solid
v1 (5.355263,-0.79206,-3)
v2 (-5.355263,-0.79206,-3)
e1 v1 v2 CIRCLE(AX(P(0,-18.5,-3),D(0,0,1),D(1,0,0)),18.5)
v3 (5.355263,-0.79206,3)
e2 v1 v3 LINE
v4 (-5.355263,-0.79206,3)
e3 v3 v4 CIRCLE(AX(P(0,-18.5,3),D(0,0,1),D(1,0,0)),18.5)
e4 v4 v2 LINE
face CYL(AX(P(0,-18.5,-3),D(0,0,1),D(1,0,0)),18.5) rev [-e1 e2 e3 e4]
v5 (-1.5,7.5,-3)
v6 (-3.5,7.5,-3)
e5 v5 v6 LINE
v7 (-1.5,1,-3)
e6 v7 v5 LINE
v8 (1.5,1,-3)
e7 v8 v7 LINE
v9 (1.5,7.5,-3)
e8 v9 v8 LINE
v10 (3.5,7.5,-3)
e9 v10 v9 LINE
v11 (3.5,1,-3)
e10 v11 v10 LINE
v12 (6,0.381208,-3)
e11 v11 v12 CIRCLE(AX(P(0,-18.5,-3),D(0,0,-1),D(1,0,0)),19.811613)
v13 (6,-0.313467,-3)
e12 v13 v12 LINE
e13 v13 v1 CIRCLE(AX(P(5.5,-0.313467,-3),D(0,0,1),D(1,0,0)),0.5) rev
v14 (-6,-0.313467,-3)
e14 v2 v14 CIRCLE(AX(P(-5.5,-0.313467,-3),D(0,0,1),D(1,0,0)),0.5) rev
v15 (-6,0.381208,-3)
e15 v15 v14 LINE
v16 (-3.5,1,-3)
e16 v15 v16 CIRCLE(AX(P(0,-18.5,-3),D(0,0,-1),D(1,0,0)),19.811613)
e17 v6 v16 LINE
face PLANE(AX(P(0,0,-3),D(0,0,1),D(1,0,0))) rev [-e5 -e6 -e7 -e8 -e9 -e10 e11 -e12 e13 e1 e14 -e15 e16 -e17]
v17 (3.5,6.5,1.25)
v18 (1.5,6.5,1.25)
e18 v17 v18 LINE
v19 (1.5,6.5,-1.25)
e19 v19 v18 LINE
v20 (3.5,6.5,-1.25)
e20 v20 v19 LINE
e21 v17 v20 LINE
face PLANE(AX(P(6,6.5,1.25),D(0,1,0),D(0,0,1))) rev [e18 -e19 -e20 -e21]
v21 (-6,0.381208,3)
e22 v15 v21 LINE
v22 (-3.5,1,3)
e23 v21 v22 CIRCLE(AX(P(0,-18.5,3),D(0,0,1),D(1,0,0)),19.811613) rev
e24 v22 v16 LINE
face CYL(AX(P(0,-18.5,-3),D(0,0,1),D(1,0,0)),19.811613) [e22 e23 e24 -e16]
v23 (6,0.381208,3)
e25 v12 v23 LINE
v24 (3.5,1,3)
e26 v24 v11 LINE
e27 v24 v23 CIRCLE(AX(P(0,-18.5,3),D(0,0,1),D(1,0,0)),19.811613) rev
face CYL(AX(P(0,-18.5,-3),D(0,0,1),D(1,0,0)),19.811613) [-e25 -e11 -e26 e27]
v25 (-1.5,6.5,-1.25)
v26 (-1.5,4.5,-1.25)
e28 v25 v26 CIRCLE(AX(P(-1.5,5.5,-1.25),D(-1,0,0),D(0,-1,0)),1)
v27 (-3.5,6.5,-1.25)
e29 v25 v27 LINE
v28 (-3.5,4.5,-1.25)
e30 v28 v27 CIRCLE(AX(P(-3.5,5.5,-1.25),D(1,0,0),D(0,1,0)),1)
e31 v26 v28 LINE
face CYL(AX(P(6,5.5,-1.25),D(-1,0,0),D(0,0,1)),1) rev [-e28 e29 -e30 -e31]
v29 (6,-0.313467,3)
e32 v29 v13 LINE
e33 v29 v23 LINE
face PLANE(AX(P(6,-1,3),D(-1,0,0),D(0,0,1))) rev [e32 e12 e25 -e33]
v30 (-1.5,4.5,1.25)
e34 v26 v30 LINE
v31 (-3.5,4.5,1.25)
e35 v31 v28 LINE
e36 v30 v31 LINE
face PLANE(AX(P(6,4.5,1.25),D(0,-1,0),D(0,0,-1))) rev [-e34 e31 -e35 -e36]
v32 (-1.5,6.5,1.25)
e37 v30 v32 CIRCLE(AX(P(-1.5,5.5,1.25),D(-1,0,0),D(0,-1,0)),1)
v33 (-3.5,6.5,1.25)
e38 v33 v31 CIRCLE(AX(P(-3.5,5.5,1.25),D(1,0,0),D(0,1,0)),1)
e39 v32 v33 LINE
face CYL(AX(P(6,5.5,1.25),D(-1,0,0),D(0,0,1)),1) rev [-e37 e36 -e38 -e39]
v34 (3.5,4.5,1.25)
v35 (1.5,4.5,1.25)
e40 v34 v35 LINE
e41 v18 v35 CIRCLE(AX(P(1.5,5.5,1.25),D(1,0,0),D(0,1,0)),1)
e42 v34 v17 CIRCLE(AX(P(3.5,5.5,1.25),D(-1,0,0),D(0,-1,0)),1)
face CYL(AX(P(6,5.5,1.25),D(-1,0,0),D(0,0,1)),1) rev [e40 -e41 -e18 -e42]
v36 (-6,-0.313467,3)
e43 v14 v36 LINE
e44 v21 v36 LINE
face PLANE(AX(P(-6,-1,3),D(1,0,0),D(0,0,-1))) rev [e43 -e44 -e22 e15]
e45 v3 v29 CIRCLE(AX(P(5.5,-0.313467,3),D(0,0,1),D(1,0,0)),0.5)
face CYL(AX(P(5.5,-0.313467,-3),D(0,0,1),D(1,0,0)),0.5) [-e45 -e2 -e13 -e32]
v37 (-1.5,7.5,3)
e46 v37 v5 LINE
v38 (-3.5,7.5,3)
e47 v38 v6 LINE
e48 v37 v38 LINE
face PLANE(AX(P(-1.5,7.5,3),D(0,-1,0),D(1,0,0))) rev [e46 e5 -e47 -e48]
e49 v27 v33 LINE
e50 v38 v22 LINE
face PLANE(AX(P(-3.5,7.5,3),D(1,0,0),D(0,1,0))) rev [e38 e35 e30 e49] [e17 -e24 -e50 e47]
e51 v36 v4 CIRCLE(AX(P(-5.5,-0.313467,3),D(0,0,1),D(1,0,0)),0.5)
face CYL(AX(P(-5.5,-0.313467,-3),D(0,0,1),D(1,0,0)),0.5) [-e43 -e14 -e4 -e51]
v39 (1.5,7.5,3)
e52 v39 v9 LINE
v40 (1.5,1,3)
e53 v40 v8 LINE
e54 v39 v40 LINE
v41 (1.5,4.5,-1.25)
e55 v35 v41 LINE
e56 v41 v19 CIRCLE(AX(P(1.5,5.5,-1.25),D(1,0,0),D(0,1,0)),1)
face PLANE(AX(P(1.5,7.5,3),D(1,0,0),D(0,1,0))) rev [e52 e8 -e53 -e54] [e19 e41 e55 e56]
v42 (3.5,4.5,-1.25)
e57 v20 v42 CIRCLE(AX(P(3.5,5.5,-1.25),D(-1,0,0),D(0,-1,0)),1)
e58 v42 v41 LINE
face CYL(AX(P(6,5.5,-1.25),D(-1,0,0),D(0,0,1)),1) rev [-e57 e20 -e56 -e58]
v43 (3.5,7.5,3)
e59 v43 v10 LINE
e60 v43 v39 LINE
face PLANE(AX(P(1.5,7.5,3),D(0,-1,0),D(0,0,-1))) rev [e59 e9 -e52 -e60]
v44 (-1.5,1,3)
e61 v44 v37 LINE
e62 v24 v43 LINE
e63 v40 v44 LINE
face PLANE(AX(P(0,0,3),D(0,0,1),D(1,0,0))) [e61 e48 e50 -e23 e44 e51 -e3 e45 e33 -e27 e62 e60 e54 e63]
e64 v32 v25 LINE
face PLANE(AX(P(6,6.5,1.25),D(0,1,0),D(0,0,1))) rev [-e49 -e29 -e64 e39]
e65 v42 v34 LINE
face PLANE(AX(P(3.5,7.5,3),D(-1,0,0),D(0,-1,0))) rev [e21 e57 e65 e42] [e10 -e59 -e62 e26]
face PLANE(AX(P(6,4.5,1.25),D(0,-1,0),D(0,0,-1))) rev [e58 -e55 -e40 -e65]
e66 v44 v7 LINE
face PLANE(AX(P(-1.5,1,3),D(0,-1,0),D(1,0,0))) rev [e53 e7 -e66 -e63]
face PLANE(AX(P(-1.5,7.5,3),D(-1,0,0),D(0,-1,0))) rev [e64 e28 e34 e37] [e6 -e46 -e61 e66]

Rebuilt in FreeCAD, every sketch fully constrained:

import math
import FreeCAD as App
import Part
import Sketcher
from FreeCAD import Vector
Q = App.Units.Quantity


def edges_at(feature, points):
    """Names of the edges that pass closest to the given points."""
    edges = feature.Shape.Edges
    near = lambda p: min(range(len(edges)), key=lambda i: edges[i].distToShape(Part.Vertex(*p))[0])
    return sorted({f"Edge{near(p) + 1}" for p in points})


def add_polygon(sketch, points):
    """Adds a closed chain of lines whose ends are joined by coincident constraints."""
    first, n = sketch.GeometryCount, len(points)
    for a, b in zip(points, points[1:] + points[:1]):
        sketch.addGeometry(Part.LineSegment(App.Vector(*a, 0), App.Vector(*b, 0)), False)
    for i in range(n):
        sketch.addConstraint(Sketcher.Constraint("Coincident", first + i, 2, first + (i + 1) % n, 1))

doc = App.newDocument("Part")
params = doc.addObject("Spreadsheet::Sheet", "Params")
for row, (alias, value) in enumerate([
    ("sketch1_width", "12 mm"),
    ("sketch1_width2", "2 mm"),
    ("sketch1_width3", "3 mm"),
    ("sketch1_height", "6.5 mm"),
    ("pad1_length", "6 mm"),
    ("sketch2_radius", "1 mm"),
    ("sketch2_height", "2.5 mm"),
    ("sketch3_diameter", "37 mm"),
    ("sketch3_width", "2.5 mm"),
    ("fillet_radius", "0.5 mm"),
], start=1):
    params.set(f"A{row}", alias)
    params.set(f"B{row}", "=" + value)
    params.setAlias(f"B{row}", alias)

body = doc.addObject("PartDesign::Body", "Body")

# Sketch on XY plane
sketch1 = body.newObject("Sketcher::SketchObject", "Sketch")
sketch1.AttachmentSupport = (doc.getObject("XY_Plane"), [""])
sketch1.MapMode = "FlatFace"
add_polygon(sketch1, [(-6, -1), (6, -1), (6, 1), (3.5, 1), (3.5, 7.5), (1.5, 7.5), (1.5, 1), (-1.5, 1), (-1.5, 7.5), (-3.5, 7.5), (-3.5, 1), (-6, 1)])  # lines 0-11
sketch1.addConstraint(Sketcher.Constraint("Horizontal", 0))
sketch1.addConstraint(Sketcher.Constraint("Vertical", 1))
sketch1.addConstraint(Sketcher.Constraint("Horizontal", 2))
sketch1.addConstraint(Sketcher.Constraint("Vertical", 3))
sketch1.addConstraint(Sketcher.Constraint("Horizontal", 4))
sketch1.addConstraint(Sketcher.Constraint("Vertical", 5))
sketch1.addConstraint(Sketcher.Constraint("Horizontal", 6))
sketch1.addConstraint(Sketcher.Constraint("Vertical", 7))
sketch1.addConstraint(Sketcher.Constraint("Horizontal", 8))
sketch1.addConstraint(Sketcher.Constraint("Vertical", 9))
sketch1.addConstraint(Sketcher.Constraint("Horizontal", 10))
sketch1.addConstraint(Sketcher.Constraint("Vertical", 11))
sketch1.addConstraint(Sketcher.Constraint("Symmetric", 0, 2, 10, 2, -1, 1))
sketch1.addConstraint(Sketcher.Constraint("Symmetric", 4, 2, 7, 2, -2))
sketch1.addConstraint(Sketcher.Constraint("Symmetric", 2, 2, 9, 2, -2))
sketch1.addConstraint(Sketcher.Constraint("Horizontal", 2, 2, 5, 2))
sketch1.addConstraint(Sketcher.Constraint("Equal", 8, 1))
sketch1.addConstraint(Sketcher.Constraint("DistanceX", 0, 1, 0, 2, Q("12 mm")))
sketch1.addConstraint(Sketcher.Constraint("DistanceX", 4, 2, 4, 1, Q("2 mm")))
sketch1.addConstraint(Sketcher.Constraint("DistanceX", 6, 2, 6, 1, Q("3 mm")))
sketch1.addConstraint(Sketcher.Constraint("DistanceY", 3, 1, 3, 2, Q("6.5 mm")))
sketch1.setExpression("Constraints[29]", "Params.sketch1_width")
sketch1.setExpression("Constraints[30]", "Params.sketch1_width2")
sketch1.setExpression("Constraints[31]", "Params.sketch1_width3")
sketch1.setExpression("Constraints[32]", "Params.sketch1_height")
pad1 = body.newObject("PartDesign::Pad", "Pad")
pad1.Profile = sketch1
pad1.setExpression("Length", "Params.pad1_length")
pad1.Midplane = True

# Sketch on YZ plane
sketch2 = body.newObject("Sketcher::SketchObject", "Sketch001")
sketch2.AttachmentSupport = (doc.getObject("YZ_Plane"), [""])
sketch2.MapMode = "FlatFace"
sketch2.AttachmentOffset = App.Placement(Vector(0, 0, -3.5), App.Rotation())
sketch2.addGeometry(Part.LineSegment(Vector(4.5, -1.2, 0), Vector(4.5, 1.2, 0)), False)
sketch2.addGeometry(Part.ArcOfCircle(Part.Circle(Vector(5.5, 1.2, 0), Vector(0, 0, 1), 1), math.radians(0), math.radians(180)), False)
sketch2.addGeometry(Part.LineSegment(Vector(6.5, 1.2, 0), Vector(6.5, -1.2, 0)), False)
sketch2.addGeometry(Part.ArcOfCircle(Part.Circle(Vector(5.5, -1.2, 0), Vector(0, 0, 1), 1), math.radians(180), math.radians(360)), False)
sketch2.addConstraint(Sketcher.Constraint("Tangent", 0, 2, 1, 2))
sketch2.addConstraint(Sketcher.Constraint("Tangent", 1, 1, 2, 1))
sketch2.addConstraint(Sketcher.Constraint("Tangent", 2, 2, 3, 2))
sketch2.addConstraint(Sketcher.Constraint("Tangent", 3, 1, 0, 1))
sketch2.addConstraint(Sketcher.Constraint("Vertical", 0))
sketch2.addConstraint(Sketcher.Constraint("Vertical", 2))
sketch2.addConstraint(Sketcher.Constraint("Radius", 1, Q("1 mm")))
sketch2.addConstraint(Sketcher.Constraint("DistanceY", 0, 1, 0, 2, Q("2.5 mm")))
sketch2.addConstraint(Sketcher.Constraint("DistanceX", -1, 1, 1, 3, Q("5.5 mm")))
sketch2.addConstraint(Sketcher.Constraint("DistanceY", -1, 1, 1, 3, Q("1.25 mm")))
sketch2.setExpression("Constraints[6]", "Params.sketch2_radius")
sketch2.setExpression("Constraints[7]", "Params.sketch2_height")
pocket1 = body.newObject("PartDesign::Pocket", "Pocket")
pocket1.Profile = sketch2
pocket1.Type = "ThroughAll"
pocket1.Midplane = True

# Sketch on XY plane
sketch3 = body.newObject("Sketcher::SketchObject", "Sketch002")
sketch3.AttachmentSupport = (doc.getObject("XY_Plane"), [""])
sketch3.MapMode = "FlatFace"
sketch3.AttachmentOffset = App.Placement(Vector(0, 0, 3), App.Rotation())
sketch3.addGeometry(Part.Circle(Vector(0, -18.5, 0), Vector(0, 0, 1), 18.5), False)
sketch3.addGeometry(Part.LineSegment(Vector(-3.5, 1, 0), Vector(-6, 1, 0)), False)
sketch3.addGeometry(Part.LineSegment(Vector(-6, 1, 0), Vector(-6, 0.4, 0)), False)
sketch3.addGeometry(Part.ArcOfCircle(Part.Circle(Vector(0, -18.5, 0), Vector(0, 0, 1), 19.8), math.radians(100.18), math.radians(107.63)), False)
sketch3.addGeometry(Part.LineSegment(Vector(6, 1, 0), Vector(3.5, 1, 0)), False)
sketch3.addGeometry(Part.ArcOfCircle(Part.Circle(Vector(0, -18.5, 0), Vector(0, 0, 1), 19.8), math.radians(72.37), math.radians(79.82)), False)
sketch3.addGeometry(Part.LineSegment(Vector(6, 0.4, 0), Vector(6, 1, 0)), False)
sketch3.addConstraint(Sketcher.Constraint("Coincident", 1, 2, 2, 1))
sketch3.addConstraint(Sketcher.Constraint("Coincident", 2, 2, 3, 2))
sketch3.addConstraint(Sketcher.Constraint("Coincident", 3, 1, 1, 1))
sketch3.addConstraint(Sketcher.Constraint("Coincident", 4, 2, 5, 2))
sketch3.addConstraint(Sketcher.Constraint("Coincident", 5, 1, 6, 1))
sketch3.addConstraint(Sketcher.Constraint("Coincident", 6, 2, 4, 1))
sketch3.addConstraint(Sketcher.Constraint("Horizontal", 1))
sketch3.addConstraint(Sketcher.Constraint("Vertical", 2))
sketch3.addConstraint(Sketcher.Constraint("Horizontal", 4))
sketch3.addConstraint(Sketcher.Constraint("Vertical", 6))
sketch3.addConstraint(Sketcher.Constraint("Coincident", 3, 3, 0, 3))
sketch3.addConstraint(Sketcher.Constraint("Coincident", 5, 3, 0, 3))
sketch3.addConstraint(Sketcher.Constraint("Equal", 3, 5))
sketch3.addConstraint(Sketcher.Constraint("Symmetric", 3, 1, 4, 2, -2))
sketch3.addConstraint(Sketcher.Constraint("Horizontal", 2, 2, 5, 1))
sketch3.addConstraint(Sketcher.Constraint("Diameter", 0, Q("37 mm")))
sketch3.addConstraint(Sketcher.Constraint("DistanceX", 1, 2, 1, 1, Q("2.5 mm")))
sketch3.addConstraint(Sketcher.Constraint("DistanceX", 1, 2, -1, 1, Q("6 mm")))
sketch3.addConstraint(Sketcher.Constraint("DistanceY", -1, 1, 1, 2, Q("1 mm")))
sketch3.addConstraint(Sketcher.Constraint("DistanceY", 0, 3, -1, 1, Q("18.5 mm")))
sketch3.setExpression("Constraints[15]", "Params.sketch3_diameter")
sketch3.setExpression("Constraints[16]", "Params.sketch3_width")
pocket2 = body.newObject("PartDesign::Pocket", "Pocket001")
pocket2.Profile = sketch3
pocket2.Type = "ThroughAll"
pocket2.Midplane = True
doc.recompute()

fillet = body.newObject("PartDesign::Fillet", "Fillet")
fillet.Base = (pocket2, edges_at(pocket2, [(6, -1, 0), (-6, -1, 0)]))
fillet.setExpression("Radius", "Params.fillet_radius")

doc.recompute()
